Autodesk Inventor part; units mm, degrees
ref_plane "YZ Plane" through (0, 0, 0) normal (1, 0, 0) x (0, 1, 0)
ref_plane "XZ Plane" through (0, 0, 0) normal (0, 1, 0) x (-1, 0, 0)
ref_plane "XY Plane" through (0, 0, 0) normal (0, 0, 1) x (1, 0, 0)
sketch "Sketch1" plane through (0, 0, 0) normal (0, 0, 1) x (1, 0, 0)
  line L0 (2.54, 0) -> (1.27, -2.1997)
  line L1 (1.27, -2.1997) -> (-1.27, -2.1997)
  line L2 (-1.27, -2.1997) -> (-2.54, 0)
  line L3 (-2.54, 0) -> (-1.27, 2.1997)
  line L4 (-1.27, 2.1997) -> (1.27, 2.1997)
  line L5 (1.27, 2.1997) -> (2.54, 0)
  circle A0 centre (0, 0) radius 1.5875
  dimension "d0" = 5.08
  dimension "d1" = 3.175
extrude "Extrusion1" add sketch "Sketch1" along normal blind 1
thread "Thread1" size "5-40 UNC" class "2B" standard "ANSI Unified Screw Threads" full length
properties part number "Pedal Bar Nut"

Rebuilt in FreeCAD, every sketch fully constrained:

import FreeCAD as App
import Part
import Sketcher
Q = App.Units.Quantity


def add_polygon(sketch, points):
    """Adds a closed chain of lines whose ends are joined by coincident constraints."""
    first, n = sketch.GeometryCount, len(points)
    for a, b in zip(points, points[1:] + points[:1]):
        sketch.addGeometry(Part.LineSegment(App.Vector(*a, 0), App.Vector(*b, 0)), False)
    for i in range(n):
        sketch.addConstraint(Sketcher.Constraint("Coincident", first + i, 2, first + (i + 1) % n, 1))

doc = App.newDocument("Part")
body = doc.addObject("PartDesign::Body", "Body")

# Sketch on XY plane
sketch1 = body.newObject("Sketcher::SketchObject", "Sketch")
sketch1.AttachmentSupport = (doc.getObject("XY_Plane"), [""])
sketch1.MapMode = "FlatFace"
add_polygon(sketch1, [(1.27, -2.1997), (2.54, 0), (1.27, 2.1997), (-1.27, 2.1997), (-2.54, 0), (-1.27, -2.1997)])  # lines 0-5
sketch1.addGeometry(Part.Circle(App.Vector(0, 0, 0), App.Vector(0, 0, 1), 1.5875), False)  # 6
sketch1.addConstraint([
    Sketcher.Constraint("Horizontal", 2),
    Sketcher.Constraint("Horizontal", 5),
    Sketcher.Constraint("Coincident", 6, 3, -1, 1),
    Sketcher.Constraint("Symmetric", 0, 2, 3, 2, -1, 1),
    Sketcher.Constraint("Symmetric", 1, 2, 4, 2, -1, 1),
    Sketcher.Constraint("PointOnObject", 0, 2, -1),
    Sketcher.Constraint("Parallel", 0, 3),
    Sketcher.Constraint("Vertical", 2, 2, 4, 2),
    Sketcher.Constraint("Diameter", 6, Q("0.125 in")),
    Sketcher.Constraint("DistanceX", 3, 2, 0, 2, Q("0.2 in")),
    Sketcher.Constraint("DistanceX", 2, 2, 2, 1, Q("0.1 in")),
    Sketcher.Constraint("Angle", 0, Q("60 deg")),
])
pad1 = body.newObject("PartDesign::Pad", "Pad")
pad1.Profile = sketch1
pad1.Length = 1

doc.recompute()
